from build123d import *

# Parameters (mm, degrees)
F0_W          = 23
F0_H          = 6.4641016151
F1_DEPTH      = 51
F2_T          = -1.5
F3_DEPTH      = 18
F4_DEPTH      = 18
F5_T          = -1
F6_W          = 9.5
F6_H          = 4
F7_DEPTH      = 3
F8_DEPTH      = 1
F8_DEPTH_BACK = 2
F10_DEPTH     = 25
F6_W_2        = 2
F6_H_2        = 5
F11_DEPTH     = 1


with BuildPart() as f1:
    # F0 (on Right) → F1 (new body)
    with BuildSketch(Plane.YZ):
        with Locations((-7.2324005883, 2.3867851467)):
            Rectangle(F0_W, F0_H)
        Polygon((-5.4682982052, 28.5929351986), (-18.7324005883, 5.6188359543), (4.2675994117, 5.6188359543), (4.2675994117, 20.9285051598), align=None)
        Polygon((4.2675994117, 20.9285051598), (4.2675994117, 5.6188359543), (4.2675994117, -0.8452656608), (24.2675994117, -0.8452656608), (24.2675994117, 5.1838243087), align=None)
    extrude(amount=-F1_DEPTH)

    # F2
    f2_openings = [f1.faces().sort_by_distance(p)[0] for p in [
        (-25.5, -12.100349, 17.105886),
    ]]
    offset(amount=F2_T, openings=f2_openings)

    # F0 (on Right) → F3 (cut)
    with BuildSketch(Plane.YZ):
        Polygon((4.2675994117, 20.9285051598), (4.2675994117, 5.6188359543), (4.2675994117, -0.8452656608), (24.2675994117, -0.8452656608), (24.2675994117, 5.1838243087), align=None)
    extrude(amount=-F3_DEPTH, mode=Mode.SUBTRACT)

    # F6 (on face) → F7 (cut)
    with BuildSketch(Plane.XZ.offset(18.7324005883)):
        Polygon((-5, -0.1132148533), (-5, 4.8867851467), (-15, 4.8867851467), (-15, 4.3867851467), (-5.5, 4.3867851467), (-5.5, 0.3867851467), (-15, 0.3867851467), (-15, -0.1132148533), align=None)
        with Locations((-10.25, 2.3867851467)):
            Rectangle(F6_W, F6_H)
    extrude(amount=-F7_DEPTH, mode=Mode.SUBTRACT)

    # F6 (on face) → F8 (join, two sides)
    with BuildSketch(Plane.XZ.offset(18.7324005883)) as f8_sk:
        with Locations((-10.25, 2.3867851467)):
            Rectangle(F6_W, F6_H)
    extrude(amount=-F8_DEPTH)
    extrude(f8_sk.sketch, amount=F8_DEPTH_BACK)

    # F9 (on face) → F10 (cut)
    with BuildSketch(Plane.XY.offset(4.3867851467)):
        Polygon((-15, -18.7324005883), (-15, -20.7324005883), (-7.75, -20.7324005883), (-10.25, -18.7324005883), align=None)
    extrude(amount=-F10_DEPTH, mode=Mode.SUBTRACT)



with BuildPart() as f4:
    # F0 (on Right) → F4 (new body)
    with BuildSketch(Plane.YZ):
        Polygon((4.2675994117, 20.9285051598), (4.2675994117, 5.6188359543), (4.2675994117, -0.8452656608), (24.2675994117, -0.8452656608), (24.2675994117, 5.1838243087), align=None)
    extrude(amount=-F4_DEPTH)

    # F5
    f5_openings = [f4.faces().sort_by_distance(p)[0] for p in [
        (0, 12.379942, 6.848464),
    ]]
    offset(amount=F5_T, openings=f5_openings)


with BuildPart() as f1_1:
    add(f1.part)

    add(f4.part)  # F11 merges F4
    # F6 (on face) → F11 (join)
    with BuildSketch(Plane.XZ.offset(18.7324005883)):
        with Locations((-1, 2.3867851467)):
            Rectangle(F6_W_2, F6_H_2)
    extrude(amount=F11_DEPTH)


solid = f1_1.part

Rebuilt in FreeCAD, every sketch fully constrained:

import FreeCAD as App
import Part
import Sketcher

V = App.Vector
Q = App.Units.Quantity


def faces_at(feature, points):
    """Names of the faces that lie closest to the given points."""
    faces = feature.Shape.Faces
    near = lambda p: min(range(len(faces)), key=lambda i: faces[i].distToShape(Part.Vertex(*p))[0])
    return sorted({f"Face{near(p) + 1}" for p in points})


def add_polygon(sketch, points):
    """Adds a closed chain of lines whose ends are joined by coincident constraints."""
    first, n = sketch.GeometryCount, len(points)
    for a, b in zip(points, points[1:] + points[:1]):
        sketch.addGeometry(Part.LineSegment(App.Vector(*a, 0), App.Vector(*b, 0)), False)
    for i in range(n):
        sketch.addConstraint(Sketcher.Constraint("Coincident", first + i, 2, first + (i + 1) % n, 1))

doc = App.newDocument("Part")
body = doc.addObject("PartDesign::Body", "Body")

sketch1 = doc.addObject("Sketcher::SketchObject", "Sketch")
body.addObject(sketch1)
sketch1.AttachmentSupport = (doc.YZ_Plane, [""])
sketch1.MapMode = "FlatFace"
add_polygon(sketch1, [(-19, 6), (-19, -1), (4, -1), (24, -1), (24, 5), (4, 21), (-5, 29)])
sketch1.addConstraint(Sketcher.Constraint("Vertical", 0))
sketch1.addConstraint(Sketcher.Constraint("Horizontal", 1))
sketch1.addConstraint(Sketcher.Constraint("Horizontal", 2))
sketch1.addConstraint(Sketcher.Constraint("Vertical", 3))
sketch1.addConstraint(Sketcher.Constraint("Parallel", 4, 5))
sketch1.addConstraint(Sketcher.Constraint("Vertical", 1, 2, 4, 2))
sketch1.addConstraint(Sketcher.Constraint("DistanceX", 1, 1, 1, 2, Q("23 mm")))
sketch1.addConstraint(Sketcher.Constraint("DistanceX", 2, 1, 2, 2, Q("20 mm")))
sketch1.addConstraint(Sketcher.Constraint("Angle", 6, Q("-120 deg")))
sketch1.addConstraint(Sketcher.Constraint("DistanceY", 0, 2, 0, 1, Q("6.464102 mm")))
sketch1.addConstraint(Sketcher.Constraint("DistanceY", 3, 1, 3, 2, Q("6.02909 mm")))
sketch1.addConstraint(Sketcher.Constraint("DistanceX", 0, 2, -1, 1, Q("18.732401 mm")))
sketch1.addConstraint(Sketcher.Constraint("DistanceX", 5, 2, -1, 1, Q("5.468298 mm")))
sketch1.addConstraint(Sketcher.Constraint("DistanceY", 0, 2, -1, 1, Q("0.845266 mm")))
pad1 = doc.addObject("PartDesign::Pad", "Pad")
body.addObject(pad1)
pad1.Profile = sketch1
pad1.Length = 51
pad1.Reversed = True
doc.recompute()

thickness = doc.addObject("PartDesign::Thickness", "Thickness")
body.addObject(thickness)
thickness.Base = (pad1, faces_at(pad1, [(-25.5, -12.1, 17.106)]))
thickness.Value = 1.5
thickness.Reversed = True
thickness.Join = "Arc"

sketch2 = doc.addObject("Sketcher::SketchObject", "Sketch001")
body.addObject(sketch2)
sketch2.AttachmentSupport = (doc.YZ_Plane, [""])
sketch2.MapMode = "FlatFace"
add_polygon(sketch2, [(4, 21), (4, -1), (24, -1), (24, 5)])
sketch2.addConstraint(Sketcher.Constraint("Vertical", 0))
sketch2.addConstraint(Sketcher.Constraint("Horizontal", 1))
sketch2.addConstraint(Sketcher.Constraint("Vertical", 2))
sketch2.addConstraint(Sketcher.Constraint("DistanceX", 1, 1, 1, 2, Q("20 mm")))
sketch2.addConstraint(Sketcher.Constraint("DistanceY", 0, 2, 0, 1, Q("21.773771 mm")))
sketch2.addConstraint(Sketcher.Constraint("DistanceY", 2, 1, 2, 2, Q("6.02909 mm")))
sketch2.addConstraint(Sketcher.Constraint("DistanceX", -1, 1, 0, 2, Q("4.267599 mm")))
sketch2.addConstraint(Sketcher.Constraint("DistanceY", 0, 2, -1, 1, Q("0.845266 mm")))
pocket1 = doc.addObject("PartDesign::Pocket", "Pocket")
body.addObject(pocket1)
pocket1.Profile = sketch2
pocket1.Length = 18

sketch3 = doc.addObject("Sketcher::SketchObject", "Sketch002")
body.addObject(sketch3)
sketch3.AttachmentSupport = (doc.XZ_Plane, [""])
sketch3.MapMode = "FlatFace"
sketch3.AttachmentOffset = App.Placement(V(0, 0, 18.732401), App.Rotation())
add_polygon(sketch3, [(-5, 0), (-5, 5), (-15, 5), (-15, 0)])
sketch3.addConstraint(Sketcher.Constraint("Vertical", 0))
sketch3.addConstraint(Sketcher.Constraint("Horizontal", 1))
sketch3.addConstraint(Sketcher.Constraint("Vertical", 2))
sketch3.addConstraint(Sketcher.Constraint("Horizontal", 3))
sketch3.addConstraint(Sketcher.Constraint("DistanceX", 1, 2, 1, 1, Q("10 mm")))
sketch3.addConstraint(Sketcher.Constraint("DistanceY", 0, 1, 0, 2, Q("5 mm")))
sketch3.addConstraint(Sketcher.Constraint("DistanceX", 0, 2, -1, 1, Q("5 mm")))
sketch3.addConstraint(Sketcher.Constraint("DistanceY", -1, 1, 0, 2, Q("4.886785 mm")))
pocket2 = doc.addObject("PartDesign::Pocket", "Pocket001")
body.addObject(pocket2)
pocket2.Profile = sketch3
pocket2.Length = 3

sketch4 = doc.addObject("Sketcher::SketchObject", "Sketch003")
body.addObject(sketch4)
sketch4.AttachmentSupport = (doc.XZ_Plane, [""])
sketch4.MapMode = "FlatFace"
sketch4.AttachmentOffset = App.Placement(V(0, 0, 18.732401), App.Rotation())
add_polygon(sketch4, [(-15, 4.4), (-15, 0.4), (-5.5, 0.4), (-5.5, 4.4)])
sketch4.addConstraint(Sketcher.Constraint("Vertical", 0))
sketch4.addConstraint(Sketcher.Constraint("Horizontal", 1))
sketch4.addConstraint(Sketcher.Constraint("Vertical", 2))
sketch4.addConstraint(Sketcher.Constraint("Horizontal", 3))
sketch4.addConstraint(Sketcher.Constraint("DistanceY", 0, 2, 0, 1, Q("4 mm")))
sketch4.addConstraint(Sketcher.Constraint("DistanceX", 1, 1, 1, 2, Q("9.5 mm")))
sketch4.addConstraint(Sketcher.Constraint("DistanceX", 0, 2, -1, 1, Q("15 mm")))
sketch4.addConstraint(Sketcher.Constraint("DistanceY", -1, 1, 0, 2, Q("0.386785 mm")))
pad2 = doc.addObject("PartDesign::Pad", "Pad001")
body.addObject(pad2)
pad2.Profile = sketch4
pad2.Type = "TwoLengths"
pad2.Length = 1
pad2.Length2 = 2
pad2.Reversed = True

sketch5 = doc.addObject("Sketcher::SketchObject", "Sketch004")
body.addObject(sketch5)
sketch5.AttachmentSupport = (doc.XY_Plane, [""])
sketch5.MapMode = "FlatFace"
sketch5.AttachmentOffset = App.Placement(V(0, 0, 4.386785), App.Rotation())
add_polygon(sketch5, [(-15, -18.7), (-15, -20.7), (-7.8, -20.7), (-10.2, -18.7)])
sketch5.addConstraint(Sketcher.Constraint("Vertical", 0))
sketch5.addConstraint(Sketcher.Constraint("Horizontal", 1))
sketch5.addConstraint(Sketcher.Constraint("Horizontal", 3))
sketch5.addConstraint(Sketcher.Constraint("DistanceY", 0, 2, 0, 1, Q("2 mm")))
sketch5.addConstraint(Sketcher.Constraint("DistanceX", 0, 2, -1, 1, Q("15 mm")))
sketch5.addConstraint(Sketcher.Constraint("DistanceX", 1, 1, 1, 2, Q("7.25 mm")))
sketch5.addConstraint(Sketcher.Constraint("DistanceX", 3, 2, 3, 1, Q("4.75 mm")))
sketch5.addConstraint(Sketcher.Constraint("DistanceY", 0, 2, -1, 1, Q("20.732401 mm")))
pocket3 = doc.addObject("PartDesign::Pocket", "Pocket002")
body.addObject(pocket3)
pocket3.Profile = sketch5
pocket3.Length = 25
body2 = doc.addObject("PartDesign::Body", "Body001")

sketch6 = doc.addObject("Sketcher::SketchObject", "Sketch005")
body2.addObject(sketch6)
sketch6.AttachmentSupport = (doc.getObject("YZ_Plane001"), [""])
sketch6.MapMode = "FlatFace"
add_polygon(sketch6, [(4, 21), (4, -1), (24, -1), (24, 5)])
sketch6.addConstraint(Sketcher.Constraint("Vertical", 0))
sketch6.addConstraint(Sketcher.Constraint("Horizontal", 1))
sketch6.addConstraint(Sketcher.Constraint("Vertical", 2))
sketch6.addConstraint(Sketcher.Constraint("DistanceX", 1, 1, 1, 2, Q("20 mm")))
sketch6.addConstraint(Sketcher.Constraint("DistanceY", 0, 2, 0, 1, Q("21.773771 mm")))
sketch6.addConstraint(Sketcher.Constraint("DistanceY", 2, 1, 2, 2, Q("6.02909 mm")))
sketch6.addConstraint(Sketcher.Constraint("DistanceX", -1, 1, 0, 2, Q("4.267599 mm")))
sketch6.addConstraint(Sketcher.Constraint("DistanceY", 0, 2, -1, 1, Q("0.845266 mm")))
pad3 = doc.addObject("PartDesign::Pad", "Pad002")
body2.addObject(pad3)
pad3.Profile = sketch6
pad3.Length = 18
pad3.Reversed = True
doc.recompute()

thickness2 = doc.addObject("PartDesign::Thickness", "Thickness001")
body2.addObject(thickness2)
thickness2.Base = (pad3, faces_at(pad3, [(0, 14.268, 10.042)]))
thickness2.Value = 1
thickness2.Reversed = True
thickness2.Join = "Arc"
doc.recompute()

boolean = doc.addObject("PartDesign::Boolean", "Boolean")
body.addObject(boolean)
boolean.Type = "Fuse"
boolean.addObjects([body2])

sketch7 = doc.addObject("Sketcher::SketchObject", "Sketch006")
body.addObject(sketch7)
sketch7.AttachmentSupport = (doc.XZ_Plane, [""])
sketch7.MapMode = "FlatFace"
sketch7.AttachmentOffset = App.Placement(V(0, 0, 18.732401), App.Rotation())
add_polygon(sketch7, [(-2, 4.9), (-2, -0.1), (0, -0.1), (0, 4.9)])
sketch7.addConstraint(Sketcher.Constraint("Vertical", 0))
sketch7.addConstraint(Sketcher.Constraint("Horizontal", 1))
sketch7.addConstraint(Sketcher.Constraint("Vertical", 2))
sketch7.addConstraint(Sketcher.Constraint("Horizontal", 3))
sketch7.addConstraint(Sketcher.Constraint("PointOnObject", 1, 2, -2))
sketch7.addConstraint(Sketcher.Constraint("DistanceX", 1, 1, 1, 2, Q("2 mm")))
sketch7.addConstraint(Sketcher.Constraint("DistanceY", 0, 2, 0, 1, Q("5 mm")))
sketch7.addConstraint(Sketcher.Constraint("DistanceY", 0, 2, -1, 1, Q("0.113215 mm")))
pad4 = doc.addObject("PartDesign::Pad", "Pad003")
body.addObject(pad4)
pad4.Profile = sketch7
pad4.Length = 1

doc.recompute()
